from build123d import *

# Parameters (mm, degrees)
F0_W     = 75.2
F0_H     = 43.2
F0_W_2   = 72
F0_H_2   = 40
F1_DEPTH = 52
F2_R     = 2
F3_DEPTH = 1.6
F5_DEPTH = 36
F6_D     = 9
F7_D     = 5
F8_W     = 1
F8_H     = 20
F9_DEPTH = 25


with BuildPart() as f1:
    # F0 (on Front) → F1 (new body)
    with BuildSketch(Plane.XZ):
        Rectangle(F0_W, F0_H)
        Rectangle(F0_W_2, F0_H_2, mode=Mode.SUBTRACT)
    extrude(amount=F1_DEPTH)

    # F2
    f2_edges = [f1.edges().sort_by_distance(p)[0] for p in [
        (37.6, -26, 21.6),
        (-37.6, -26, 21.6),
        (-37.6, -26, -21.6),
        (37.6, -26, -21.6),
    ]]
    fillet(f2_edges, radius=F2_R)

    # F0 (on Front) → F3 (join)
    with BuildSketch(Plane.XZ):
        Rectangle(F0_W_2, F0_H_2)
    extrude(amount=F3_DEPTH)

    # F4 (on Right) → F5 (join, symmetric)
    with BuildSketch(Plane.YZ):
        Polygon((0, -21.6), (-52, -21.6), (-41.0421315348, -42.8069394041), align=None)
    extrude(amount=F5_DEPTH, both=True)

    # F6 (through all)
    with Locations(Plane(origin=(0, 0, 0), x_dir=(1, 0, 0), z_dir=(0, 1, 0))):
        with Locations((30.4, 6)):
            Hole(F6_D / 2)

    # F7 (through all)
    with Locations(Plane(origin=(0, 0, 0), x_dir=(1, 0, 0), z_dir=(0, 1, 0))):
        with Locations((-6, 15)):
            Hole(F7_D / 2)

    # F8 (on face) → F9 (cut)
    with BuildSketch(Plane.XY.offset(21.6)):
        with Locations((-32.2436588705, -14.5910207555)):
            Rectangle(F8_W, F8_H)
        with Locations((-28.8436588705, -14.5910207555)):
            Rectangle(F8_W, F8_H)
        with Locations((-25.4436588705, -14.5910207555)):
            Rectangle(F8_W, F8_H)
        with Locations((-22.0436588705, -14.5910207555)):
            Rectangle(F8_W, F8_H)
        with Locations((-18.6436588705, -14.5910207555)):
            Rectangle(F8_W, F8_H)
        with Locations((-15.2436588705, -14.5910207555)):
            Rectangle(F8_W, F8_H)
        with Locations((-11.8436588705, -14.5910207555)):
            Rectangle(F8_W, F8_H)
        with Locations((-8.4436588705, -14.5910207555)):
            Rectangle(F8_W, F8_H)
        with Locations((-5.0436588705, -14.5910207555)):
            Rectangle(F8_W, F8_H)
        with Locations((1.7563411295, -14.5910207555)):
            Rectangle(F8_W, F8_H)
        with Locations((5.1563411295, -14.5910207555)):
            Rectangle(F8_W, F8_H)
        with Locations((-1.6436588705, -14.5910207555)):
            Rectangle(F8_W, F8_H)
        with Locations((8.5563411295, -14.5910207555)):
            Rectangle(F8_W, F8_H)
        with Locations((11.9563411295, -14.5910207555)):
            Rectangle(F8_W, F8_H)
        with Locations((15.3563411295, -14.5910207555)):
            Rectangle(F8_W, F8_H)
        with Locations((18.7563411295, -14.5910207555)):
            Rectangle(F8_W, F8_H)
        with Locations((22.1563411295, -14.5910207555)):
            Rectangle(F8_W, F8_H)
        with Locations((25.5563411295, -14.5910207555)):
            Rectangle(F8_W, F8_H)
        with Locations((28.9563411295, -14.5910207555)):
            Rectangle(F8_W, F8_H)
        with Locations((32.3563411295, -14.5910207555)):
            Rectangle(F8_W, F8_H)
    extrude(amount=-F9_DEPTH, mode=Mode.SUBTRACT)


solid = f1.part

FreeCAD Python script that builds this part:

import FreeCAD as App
import Part
import Sketcher

V = App.Vector


def edges_at(feature, points):
    """Names of the edges that pass closest to the given points."""
    edges = feature.Shape.Edges
    near = lambda p: min(range(len(edges)), key=lambda i: edges[i].distToShape(Part.Vertex(*p))[0])
    return sorted({f"Edge{near(p) + 1}" for p in points})


def add_polygon(sketch, points):
    """Adds a closed chain of lines whose ends are joined by coincident constraints."""
    first, n = sketch.GeometryCount, len(points)
    for a, b in zip(points, points[1:] + points[:1]):
        sketch.addGeometry(Part.LineSegment(App.Vector(*a, 0), App.Vector(*b, 0)), False)
    for i in range(n):
        sketch.addConstraint(Sketcher.Constraint("Coincident", first + i, 2, first + (i + 1) % n, 1))

doc = App.newDocument("Part")
body = doc.addObject("PartDesign::Body", "Body")

# Sketch on XZ plane
sketch1 = body.newObject("Sketcher::SketchObject", "Sketch")
sketch1.AttachmentSupport = (doc.getObject("XZ_Plane"), [""])
sketch1.MapMode = "FlatFace"
add_polygon(sketch1, [(-37.6, 21.6), (-37.6, -21.6), (37.6, -21.6), (37.6, 21.6)])  # lines 0-3
add_polygon(sketch1, [(36, -20), (-36, -20), (-36, 20), (36, 20)])  # lines 4-7
sketch1.addConstraint(Sketcher.Constraint("Vertical", 0))
sketch1.addConstraint(Sketcher.Constraint("Horizontal", 1))
sketch1.addConstraint(Sketcher.Constraint("Vertical", 2))
sketch1.addConstraint(Sketcher.Constraint("Horizontal", 3))
sketch1.addConstraint(Sketcher.Constraint("Horizontal", 4))
sketch1.addConstraint(Sketcher.Constraint("Vertical", 5))
sketch1.addConstraint(Sketcher.Constraint("Horizontal", 6))
sketch1.addConstraint(Sketcher.Constraint("Vertical", 7))
sketch1.addConstraint(Sketcher.Constraint("Symmetric", 0, 2, 2, 2, -1, 1))
sketch1.addConstraint(Sketcher.Constraint("Symmetric", 4, 2, 6, 2, -1, 1))
sketch1.addConstraint(Sketcher.Constraint("DistanceX", 4, 2, 4, 1, 72.0))
sketch1.addConstraint(Sketcher.Constraint("DistanceY", 5, 1, 5, 2, 40.0))
sketch1.addConstraint(Sketcher.Constraint("DistanceX", 1, 1, 1, 2, 75.2))
sketch1.addConstraint(Sketcher.Constraint("DistanceY", 0, 2, 0, 1, 43.2))
pad1 = body.newObject("PartDesign::Pad", "Pad")
pad1.Profile = sketch1
pad1.Length = 52
doc.recompute()

fillet = body.newObject("PartDesign::Fillet", "Fillet")
fillet.Base = (pad1, edges_at(pad1, [
    (37.6, -26, 21.6),
    (-37.6, -26, 21.6),
    (-37.6, -26, -21.6),
    (37.6, -26, -21.6),
]))
fillet.Radius = 2

# Sketch on XZ plane
sketch2 = body.newObject("Sketcher::SketchObject", "Sketch001")
sketch2.AttachmentSupport = (doc.getObject("XZ_Plane"), [""])
sketch2.MapMode = "FlatFace"
add_polygon(sketch2, [(-36, 20), (-36, -20), (36, -20), (36, 20)])  # lines 0-3
sketch2.addConstraint(Sketcher.Constraint("Vertical", 0))
sketch2.addConstraint(Sketcher.Constraint("Horizontal", 1))
sketch2.addConstraint(Sketcher.Constraint("Vertical", 2))
sketch2.addConstraint(Sketcher.Constraint("Horizontal", 3))
sketch2.addConstraint(Sketcher.Constraint("Symmetric", 0, 2, 2, 2, -1, 1))
sketch2.addConstraint(Sketcher.Constraint("DistanceX", 1, 1, 1, 2, 72.0))
sketch2.addConstraint(Sketcher.Constraint("DistanceY", 0, 2, 0, 1, 40.0))
pad2 = body.newObject("PartDesign::Pad", "Pad001")
pad2.Profile = sketch2
pad2.Length = 1.6

# Sketch on YZ plane
sketch3 = body.newObject("Sketcher::SketchObject", "Sketch002")
sketch3.AttachmentSupport = (doc.getObject("YZ_Plane"), [""])
sketch3.MapMode = "FlatFace"
add_polygon(sketch3, [(0, -21.6), (-52, -21.6), (-41.042132, -42.806939)])  # lines 0-2
sketch3.addConstraint(Sketcher.Constraint("Horizontal", 0))
sketch3.addConstraint(Sketcher.Constraint("PointOnObject", 2, 2, -2))
sketch3.addConstraint(Sketcher.Constraint("Perpendicular", 1, 2))
sketch3.addConstraint(Sketcher.Constraint("DistanceX", 0, 2, 0, 1, 52.0))
sketch3.addConstraint(Sketcher.Constraint("DistanceY", 0, 2, -1, 1, 21.6))
sketch3.addConstraint(Sketcher.Constraint("DistanceX", 1, 2, -1, 1, 41.042132))
pad3 = body.newObject("PartDesign::Pad", "Pad002")
pad3.Profile = sketch3
pad3.Length = 72
pad3.Midplane = True

# Sketch on XZ plane
sketch4 = body.newObject("Sketcher::SketchObject", "Sketch003")
sketch4.AttachmentSupport = (doc.getObject("XZ_Plane"), [""])
sketch4.MapMode = "FlatFace"
sketch4.addGeometry(Part.Circle(V(30.4, -6, 0), V(0, 0, 1), 4.5), False)
sketch4.addConstraint(Sketcher.Constraint("Diameter", 0, 9.0))
sketch4.addConstraint(Sketcher.Constraint("DistanceY", 0, 3, -1, 1, 6.0))
sketch4.addConstraint(Sketcher.Constraint("DistanceX", -1, 1, 0, 3, 30.4))
doc.recompute()
hole = body.newObject("PartDesign::Hole", "Hole")
hole.Profile = sketch4
hole.ThreadType = "None"
hole.Diameter = 9
hole.DepthType = "ThroughAll"
hole.Reversed = True

# Sketch on XZ plane
sketch5 = body.newObject("Sketcher::SketchObject", "Sketch004")
sketch5.AttachmentSupport = (doc.getObject("XZ_Plane"), [""])
sketch5.MapMode = "FlatFace"
sketch5.addGeometry(Part.Circle(V(-6, -15, 0), V(0, 0, 1), 2.5), False)
sketch5.addConstraint(Sketcher.Constraint("Diameter", 0, 5.0))
sketch5.addConstraint(Sketcher.Constraint("DistanceX", 0, 3, -1, 1, 6.0))
sketch5.addConstraint(Sketcher.Constraint("DistanceY", 0, 3, -1, 1, 15.0))
doc.recompute()
hole2 = body.newObject("PartDesign::Hole", "Hole001")
hole2.Profile = sketch5
hole2.ThreadType = "None"
hole2.Diameter = 5
hole2.DepthType = "ThroughAll"
hole2.Reversed = True

# Sketch on XY plane
sketch6 = body.newObject("Sketcher::SketchObject", "Sketch005")
sketch6.AttachmentSupport = (doc.getObject("XY_Plane"), [""])
sketch6.MapMode = "FlatFace"
sketch6.AttachmentOffset = App.Placement(V(0, 0, 21.6), App.Rotation())
add_polygon(sketch6, [(-32.743659, -4.591021), (-32.743659, -24.591021), (-31.743659, -24.591021), (-31.743659, -4.591021)])  # lines 0-3
add_polygon(sketch6, [(-29.343659, -4.591021), (-29.343659, -24.591021), (-28.343659, -24.591021), (-28.343659, -4.591021)])  # lines 4-7
add_polygon(sketch6, [(-25.943659, -4.591021), (-25.943659, -24.591021), (-24.943659, -24.591021), (-24.943659, -4.591021)])  # lines 8-11
add_polygon(sketch6, [(-22.543659, -4.591021), (-22.543659, -24.591021), (-21.543659, -24.591021), (-21.543659, -4.591021)])  # lines 12-15
add_polygon(sketch6, [(-19.143659, -4.591021), (-19.143659, -24.591021), (-18.143659, -24.591021), (-18.143659, -4.591021)])  # lines 16-19
add_polygon(sketch6, [(-15.743659, -4.591021), (-15.743659, -24.591021), (-14.743659, -24.591021), (-14.743659, -4.591021)])  # lines 20-23
add_polygon(sketch6, [(-12.343659, -4.591021), (-12.343659, -24.591021), (-11.343659, -24.591021), (-11.343659, -4.591021)])  # lines 24-27
add_polygon(sketch6, [(-8.943659, -4.591021), (-8.943659, -24.591021), (-7.943659, -24.591021), (-7.943659, -4.591021)])  # lines 28-31
add_polygon(sketch6, [(-5.543659, -4.591021), (-5.543659, -24.591021), (-4.543659, -24.591021), (-4.543659, -4.591021)])  # lines 32-35
add_polygon(sketch6, [(1.256341, -4.591021), (1.256341, -24.591021), (2.256341, -24.591021), (2.256341, -4.591021)])  # lines 36-39
add_polygon(sketch6, [(4.656341, -4.591021), (4.656341, -24.591021), (5.656341, -24.591021), (5.656341, -4.591021)])  # lines 40-43
add_polygon(sketch6, [(-2.143659, -4.591021), (-2.143659, -24.591021), (-1.143659, -24.591021), (-1.143659, -4.591021)])  # lines 44-47
add_polygon(sketch6, [(8.056341, -4.591021), (8.056341, -24.591021), (9.056341, -24.591021), (9.056341, -4.591021)])  # lines 48-51
add_polygon(sketch6, [(11.456341, -4.591021), (11.456341, -24.591021), (12.456341, -24.591021), (12.456341, -4.591021)])  # lines 52-55
add_polygon(sketch6, [(14.856341, -4.591021), (14.856341, -24.591021), (15.856341, -24.591021), (15.856341, -4.591021)])  # lines 56-59
add_polygon(sketch6, [(18.256341, -4.591021), (18.256341, -24.591021), (19.256341, -24.591021), (19.256341, -4.591021)])  # lines 60-63
add_polygon(sketch6, [(21.656341, -4.591021), (21.656341, -24.591021), (22.656341, -24.591021), (22.656341, -4.591021)])  # lines 64-67
add_polygon(sketch6, [(25.056341, -4.591021), (25.056341, -24.591021), (26.056341, -24.591021), (26.056341, -4.591021)])  # lines 68-71
add_polygon(sketch6, [(28.456341, -4.591021), (28.456341, -24.591021), (29.456341, -24.591021), (29.456341, -4.591021)])  # lines 72-75
add_polygon(sketch6, [(31.856341, -4.591021), (31.856341, -24.591021), (32.856341, -24.591021), (32.856341, -4.591021)])  # lines 76-79
sketch6.addConstraint(Sketcher.Constraint("Vertical", 0))
sketch6.addConstraint(Sketcher.Constraint("Horizontal", 1))
sketch6.addConstraint(Sketcher.Constraint("Vertical", 2))
sketch6.addConstraint(Sketcher.Constraint("Horizontal", 3))
sketch6.addConstraint(Sketcher.Constraint("Vertical", 4))
sketch6.addConstraint(Sketcher.Constraint("Horizontal", 5))
sketch6.addConstraint(Sketcher.Constraint("Vertical", 6))
sketch6.addConstraint(Sketcher.Constraint("Horizontal", 7))
sketch6.addConstraint(Sketcher.Constraint("Vertical", 8))
sketch6.addConstraint(Sketcher.Constraint("Horizontal", 9))
sketch6.addConstraint(Sketcher.Constraint("Vertical", 10))
sketch6.addConstraint(Sketcher.Constraint("Horizontal", 11))
sketch6.addConstraint(Sketcher.Constraint("Vertical", 12))
sketch6.addConstraint(Sketcher.Constraint("Horizontal", 13))
sketch6.addConstraint(Sketcher.Constraint("Vertical", 14))
sketch6.addConstraint(Sketcher.Constraint("Horizontal", 15))
sketch6.addConstraint(Sketcher.Constraint("Vertical", 16))
sketch6.addConstraint(Sketcher.Constraint("Horizontal", 17))
sketch6.addConstraint(Sketcher.Constraint("Vertical", 18))
sketch6.addConstraint(Sketcher.Constraint("Horizontal", 19))
sketch6.addConstraint(Sketcher.Constraint("Vertical", 20))
sketch6.addConstraint(Sketcher.Constraint("Horizontal", 21))
sketch6.addConstraint(Sketcher.Constraint("Vertical", 22))
sketch6.addConstraint(Sketcher.Constraint("Horizontal", 23))
sketch6.addConstraint(Sketcher.Constraint("Vertical", 24))
sketch6.addConstraint(Sketcher.Constraint("Horizontal", 25))
sketch6.addConstraint(Sketcher.Constraint("Vertical", 26))
sketch6.addConstraint(Sketcher.Constraint("Horizontal", 27))
sketch6.addConstraint(Sketcher.Constraint("Vertical", 28))
sketch6.addConstraint(Sketcher.Constraint("Horizontal", 29))
sketch6.addConstraint(Sketcher.Constraint("Vertical", 30))
sketch6.addConstraint(Sketcher.Constraint("Horizontal", 31))
sketch6.addConstraint(Sketcher.Constraint("Vertical", 32))
sketch6.addConstraint(Sketcher.Constraint("Horizontal", 33))
sketch6.addConstraint(Sketcher.Constraint("Vertical", 34))
sketch6.addConstraint(Sketcher.Constraint("Horizontal", 35))
sketch6.addConstraint(Sketcher.Constraint("Vertical", 36))
sketch6.addConstraint(Sketcher.Constraint("Horizontal", 37))
sketch6.addConstraint(Sketcher.Constraint("Vertical", 38))
sketch6.addConstraint(Sketcher.Constraint("Horizontal", 39))
sketch6.addConstraint(Sketcher.Constraint("Vertical", 40))
sketch6.addConstraint(Sketcher.Constraint("Horizontal", 41))
sketch6.addConstraint(Sketcher.Constraint("Vertical", 42))
sketch6.addConstraint(Sketcher.Constraint("Horizontal", 43))
sketch6.addConstraint(Sketcher.Constraint("Vertical", 44))
sketch6.addConstraint(Sketcher.Constraint("Horizontal", 45))
sketch6.addConstraint(Sketcher.Constraint("Vertical", 46))
sketch6.addConstraint(Sketcher.Constraint("Horizontal", 47))
sketch6.addConstraint(Sketcher.Constraint("Vertical", 48))
sketch6.addConstraint(Sketcher.Constraint("Horizontal", 49))
sketch6.addConstraint(Sketcher.Constraint("Vertical", 50))
sketch6.addConstraint(Sketcher.Constraint("Horizontal", 51))
sketch6.addConstraint(Sketcher.Constraint("Vertical", 52))
sketch6.addConstraint(Sketcher.Constraint("Horizontal", 53))
sketch6.addConstraint(Sketcher.Constraint("Vertical", 54))
sketch6.addConstraint(Sketcher.Constraint("Horizontal", 55))
sketch6.addConstraint(Sketcher.Constraint("Vertical", 56))
sketch6.addConstraint(Sketcher.Constraint("Horizontal", 57))
sketch6.addConstraint(Sketcher.Constraint("Vertical", 58))
sketch6.addConstraint(Sketcher.Constraint("Horizontal", 59))
sketch6.addConstraint(Sketcher.Constraint("Vertical", 60))
sketch6.addConstraint(Sketcher.Constraint("Horizontal", 61))
sketch6.addConstraint(Sketcher.Constraint("Vertical", 62))
sketch6.addConstraint(Sketcher.Constraint("Horizontal", 63))
sketch6.addConstraint(Sketcher.Constraint("Vertical", 64))
sketch6.addConstraint(Sketcher.Constraint("Horizontal", 65))
sketch6.addConstraint(Sketcher.Constraint("Vertical", 66))
sketch6.addConstraint(Sketcher.Constraint("Horizontal", 67))
sketch6.addConstraint(Sketcher.Constraint("Vertical", 68))
sketch6.addConstraint(Sketcher.Constraint("Horizontal", 69))
sketch6.addConstraint(Sketcher.Constraint("Vertical", 70))
sketch6.addConstraint(Sketcher.Constraint("Horizontal", 71))
sketch6.addConstraint(Sketcher.Constraint("Vertical", 72))
sketch6.addConstraint(Sketcher.Constraint("Horizontal", 73))
sketch6.addConstraint(Sketcher.Constraint("Vertical", 74))
sketch6.addConstraint(Sketcher.Constraint("Horizontal", 75))
sketch6.addConstraint(Sketcher.Constraint("Vertical", 76))
sketch6.addConstraint(Sketcher.Constraint("Horizontal", 77))
sketch6.addConstraint(Sketcher.Constraint("Vertical", 78))
sketch6.addConstraint(Sketcher.Constraint("Horizontal", 79))
sketch6.addConstraint(Sketcher.Constraint("Horizontal", 1, 2, 4, 2))
sketch6.addConstraint(Sketcher.Constraint("Horizontal", 3, 2, 6, 2))
sketch6.addConstraint(Sketcher.Constraint("Horizontal", 5, 2, 8, 2))
sketch6.addConstraint(Sketcher.Constraint("Horizontal", 7, 2, 10, 2))
sketch6.addConstraint(Sketcher.Constraint("Horizontal", 9, 2, 12, 2))
sketch6.addConstraint(Sketcher.Constraint("Horizontal", 11, 2, 14, 2))
sketch6.addConstraint(Sketcher.Constraint("Horizontal", 13, 2, 16, 2))
sketch6.addConstraint(Sketcher.Constraint("Horizontal", 15, 2, 18, 2))
sketch6.addConstraint(Sketcher.Constraint("Horizontal", 17, 2, 20, 2))
sketch6.addConstraint(Sketcher.Constraint("Horizontal", 19, 2, 22, 2))
sketch6.addConstraint(Sketcher.Constraint("Horizontal", 21, 2, 24, 2))
sketch6.addConstraint(Sketcher.Constraint("Horizontal", 23, 2, 26, 2))
sketch6.addConstraint(Sketcher.Constraint("Horizontal", 25, 2, 28, 2))
sketch6.addConstraint(Sketcher.Constraint("Horizontal", 27, 2, 30, 2))
sketch6.addConstraint(Sketcher.Constraint("Horizontal", 29, 2, 32, 2))
sketch6.addConstraint(Sketcher.Constraint("Horizontal", 31, 2, 34, 2))
sketch6.addConstraint(Sketcher.Constraint("Horizontal", 33, 2, 36, 2))
sketch6.addConstraint(Sketcher.Constraint("Horizontal", 35, 2, 38, 2))
sketch6.addConstraint(Sketcher.Constraint("Horizontal", 37, 2, 40, 2))
sketch6.addConstraint(Sketcher.Constraint("Horizontal", 39, 2, 42, 2))
sketch6.addConstraint(Sketcher.Constraint("Horizontal", 41, 2, 44, 2))
sketch6.addConstraint(Sketcher.Constraint("Horizontal", 43, 2, 46, 2))
sketch6.addConstraint(Sketcher.Constraint("Horizontal", 45, 2, 48, 2))
sketch6.addConstraint(Sketcher.Constraint("Horizontal", 47, 2, 50, 2))
sketch6.addConstraint(Sketcher.Constraint("Horizontal", 49, 2, 52, 2))
sketch6.addConstraint(Sketcher.Constraint("Horizontal", 51, 2, 54, 2))
sketch6.addConstraint(Sketcher.Constraint("Horizontal", 53, 2, 56, 2))
sketch6.addConstraint(Sketcher.Constraint("Horizontal", 55, 2, 58, 2))
sketch6.addConstraint(Sketcher.Constraint("Horizontal", 57, 2, 60, 2))
sketch6.addConstraint(Sketcher.Constraint("Horizontal", 59, 2, 62, 2))
sketch6.addConstraint(Sketcher.Constraint("Horizontal", 61, 2, 64, 2))
sketch6.addConstraint(Sketcher.Constraint("Horizontal", 63, 2, 66, 2))
sketch6.addConstraint(Sketcher.Constraint("Horizontal", 65, 2, 68, 2))
sketch6.addConstraint(Sketcher.Constraint("Horizontal", 67, 2, 70, 2))
sketch6.addConstraint(Sketcher.Constraint("Horizontal", 69, 2, 72, 2))
sketch6.addConstraint(Sketcher.Constraint("Horizontal", 71, 2, 74, 2))
sketch6.addConstraint(Sketcher.Constraint("Horizontal", 73, 2, 76, 2))
sketch6.addConstraint(Sketcher.Constraint("Horizontal", 75, 2, 78, 2))
sketch6.addConstraint(Sketcher.Constraint("Equal", 3, 5))
sketch6.addConstraint(Sketcher.Constraint("Equal", 7, 9))
sketch6.addConstraint(Sketcher.Constraint("Equal", 11, 13))
sketch6.addConstraint(Sketcher.Constraint("Equal", 15, 17))
sketch6.addConstraint(Sketcher.Constraint("Equal", 19, 21))
sketch6.addConstraint(Sketcher.Constraint("Equal", 23, 25))
sketch6.addConstraint(Sketcher.Constraint("Equal", 27, 29))
sketch6.addConstraint(Sketcher.Constraint("Equal", 31, 33))
sketch6.addConstraint(Sketcher.Constraint("Equal", 35, 37))
sketch6.addConstraint(Sketcher.Constraint("Equal", 39, 41))
sketch6.addConstraint(Sketcher.Constraint("Equal", 43, 45))
sketch6.addConstraint(Sketcher.Constraint("Equal", 47, 49))
sketch6.addConstraint(Sketcher.Constraint("Equal", 51, 53))
sketch6.addConstraint(Sketcher.Constraint("Equal", 55, 57))
sketch6.addConstraint(Sketcher.Constraint("Equal", 59, 61))
sketch6.addConstraint(Sketcher.Constraint("Equal", 63, 65))
sketch6.addConstraint(Sketcher.Constraint("Equal", 67, 69))
sketch6.addConstraint(Sketcher.Constraint("Equal", 71, 73))
sketch6.addConstraint(Sketcher.Constraint("Equal", 75, 77))
sketch6.addConstraint(Sketcher.Constraint("DistanceX", 1, 1, 1, 2, 1.0))
sketch6.addConstraint(Sketcher.Constraint("DistanceY", 0, 2, 0, 1, 20.0))
sketch6.addConstraint(Sketcher.Constraint("DistanceX", 0, 2, -1, 1, 32.743659))
sketch6.addConstraint(Sketcher.Constraint("DistanceY", 0, 2, -1, 1, 24.591021))
sketch6.addConstraint(Sketcher.Constraint("DistanceX", 4, 2, -1, 1, 29.343659))
sketch6.addConstraint(Sketcher.Constraint("DistanceX", 8, 2, -1, 1, 25.943659))
sketch6.addConstraint(Sketcher.Constraint("DistanceX", 12, 2, -1, 1, 22.543659))
sketch6.addConstraint(Sketcher.Constraint("DistanceX", 16, 2, -1, 1, 19.143659))
sketch6.addConstraint(Sketcher.Constraint("DistanceX", 20, 2, -1, 1, 15.743659))
sketch6.addConstraint(Sketcher.Constraint("DistanceX", 24, 2, -1, 1, 12.343659))
sketch6.addConstraint(Sketcher.Constraint("DistanceX", 28, 2, -1, 1, 8.943659))
sketch6.addConstraint(Sketcher.Constraint("DistanceX", 32, 2, -1, 1, 5.543659))
sketch6.addConstraint(Sketcher.Constraint("DistanceX", -1, 1, 36, 2, 1.256341))
sketch6.addConstraint(Sketcher.Constraint("DistanceX", -1, 1, 40, 2, 4.656341))
sketch6.addConstraint(Sketcher.Constraint("DistanceX", 44, 2, -1, 1, 2.143659))
sketch6.addConstraint(Sketcher.Constraint("DistanceX", -1, 1, 48, 2, 8.056341))
sketch6.addConstraint(Sketcher.Constraint("DistanceX", -1, 1, 52, 2, 11.456341))
sketch6.addConstraint(Sketcher.Constraint("DistanceX", -1, 1, 56, 2, 14.856341))
sketch6.addConstraint(Sketcher.Constraint("DistanceX", -1, 1, 60, 2, 18.256341))
sketch6.addConstraint(Sketcher.Constraint("DistanceX", -1, 1, 64, 2, 21.656341))
sketch6.addConstraint(Sketcher.Constraint("DistanceX", -1, 1, 68, 2, 25.056341))
sketch6.addConstraint(Sketcher.Constraint("DistanceX", -1, 1, 72, 2, 28.456341))
sketch6.addConstraint(Sketcher.Constraint("DistanceX", -1, 1, 76, 2, 31.856341))
pocket1 = body.newObject("PartDesign::Pocket", "Pocket")
pocket1.Profile = sketch6
pocket1.Length = 25

doc.recompute()
